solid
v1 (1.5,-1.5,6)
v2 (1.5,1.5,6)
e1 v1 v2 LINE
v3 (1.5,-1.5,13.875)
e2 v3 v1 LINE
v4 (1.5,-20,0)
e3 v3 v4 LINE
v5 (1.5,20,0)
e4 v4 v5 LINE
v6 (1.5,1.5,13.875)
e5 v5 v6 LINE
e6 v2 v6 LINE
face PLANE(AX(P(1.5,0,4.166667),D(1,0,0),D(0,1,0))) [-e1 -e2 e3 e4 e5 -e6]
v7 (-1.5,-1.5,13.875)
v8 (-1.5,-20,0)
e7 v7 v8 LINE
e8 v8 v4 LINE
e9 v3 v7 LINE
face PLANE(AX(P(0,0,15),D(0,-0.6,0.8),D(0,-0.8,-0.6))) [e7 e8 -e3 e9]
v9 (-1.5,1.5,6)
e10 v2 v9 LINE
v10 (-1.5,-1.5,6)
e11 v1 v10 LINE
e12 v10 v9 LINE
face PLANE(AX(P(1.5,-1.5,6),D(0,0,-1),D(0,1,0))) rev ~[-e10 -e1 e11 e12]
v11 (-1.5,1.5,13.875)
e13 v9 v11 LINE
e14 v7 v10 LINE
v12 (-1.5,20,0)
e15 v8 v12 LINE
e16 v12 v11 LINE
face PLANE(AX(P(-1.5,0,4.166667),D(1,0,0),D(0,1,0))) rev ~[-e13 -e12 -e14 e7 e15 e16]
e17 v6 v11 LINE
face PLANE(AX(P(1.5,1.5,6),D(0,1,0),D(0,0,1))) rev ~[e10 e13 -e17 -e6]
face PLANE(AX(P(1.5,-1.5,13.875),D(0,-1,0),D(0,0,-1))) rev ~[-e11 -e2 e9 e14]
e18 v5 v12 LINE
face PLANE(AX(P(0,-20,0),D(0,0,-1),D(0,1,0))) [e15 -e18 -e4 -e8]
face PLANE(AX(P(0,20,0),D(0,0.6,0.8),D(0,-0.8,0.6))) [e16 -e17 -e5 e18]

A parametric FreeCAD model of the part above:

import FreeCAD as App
import Part
import Sketcher
Q = App.Units.Quantity

doc = App.newDocument("Part")
body = doc.addObject("PartDesign::Body", "Body")

# Sketch on YZ plane
sketch1 = doc.addObject("Sketcher::SketchObject", "Sketch")
body.addObject(sketch1)
sketch1.AttachmentSupport = (doc.YZ_Plane, [""])
sketch1.MapMode = "FlatFace"
sketch1.addGeometry([
    Part.LineSegment(App.Vector(0, 15, 0), App.Vector(-20, 0, 0)),
    Part.LineSegment(App.Vector(-20, 0, 0), App.Vector(20, 0, 0)),
    Part.LineSegment(App.Vector(20, 0, 0), App.Vector(0, 15, 0)),
], False)
sketch1.addConstraint([
    Sketcher.Constraint("Coincident", 0, 2, 1, 1),
    Sketcher.Constraint("Coincident", 1, 2, 2, 1),
    Sketcher.Constraint("Coincident", 2, 2, 0, 1),
    Sketcher.Constraint("Horizontal", 1),
    Sketcher.Constraint("Symmetric", 0, 2, 1, 2, -1, 1),
    Sketcher.Constraint("PointOnObject", 2, 2, -2),
    Sketcher.Constraint("DistanceX", 1, 1, 1, 2, Q("40 mm")),
    Sketcher.Constraint("Distance", 0, Q("25 mm")),
])
pad1 = doc.addObject("PartDesign::Pad", "Pad")
body.addObject(pad1)
pad1.Profile = sketch1
pad1.Length = 3
pad1.Midplane = True

# Sketch on YZ plane
sketch2 = doc.addObject("Sketcher::SketchObject", "Sketch001")
body.addObject(sketch2)
sketch2.AttachmentSupport = (doc.YZ_Plane, [""])
sketch2.MapMode = "FlatFace"
sketch2.AttachmentOffset = App.Placement(App.Vector(0, 0, 1.5), App.Rotation())
sketch2.addGeometry([
    Part.LineSegment(App.Vector(-1.5, 13.875, 0), App.Vector(-1.5, 6, 0)),  # 0
    Part.LineSegment(App.Vector(-1.5, 6, 0), App.Vector(1.5, 6, 0)),  # 1
    Part.LineSegment(App.Vector(1.5, 6, 0), App.Vector(1.5, 13.875, 0)),  # 2
    Part.LineSegment(App.Vector(1.5, 13.875, 0), App.Vector(0, 15, 0)),  # 3
    Part.LineSegment(App.Vector(0, 15, 0), App.Vector(-1.5, 13.875, 0)),  # 4
], False)
sketch2.addConstraint([
    Sketcher.Constraint("Coincident", 0, 2, 1, 1),
    Sketcher.Constraint("Coincident", 1, 2, 2, 1),
    Sketcher.Constraint("Coincident", 2, 2, 3, 1),
    Sketcher.Constraint("Coincident", 3, 2, 4, 1),
    Sketcher.Constraint("Coincident", 4, 2, 0, 1),
    Sketcher.Constraint("Vertical", 0),
    Sketcher.Constraint("Horizontal", 1),
    Sketcher.Constraint("Vertical", 2),
    Sketcher.Constraint("Symmetric", 2, 2, 4, 2, -2),
    Sketcher.Constraint("PointOnObject", 3, 2, -2),
    Sketcher.Constraint("DistanceX", 1, 1, 1, 2, Q("3 mm")),
    Sketcher.Constraint("DistanceY", -1, 1, 0, 2, Q("6 mm")),
    Sketcher.Constraint("DistanceY", -1, 1, 3, 2, Q("15 mm")),
    Sketcher.Constraint("DistanceY", 0, 2, 0, 1, Q("7.875 mm")),
])
pocket1 = doc.addObject("PartDesign::Pocket", "Pocket")
body.addObject(pocket1)
pocket1.Profile = sketch2
pocket1.Length = 25

doc.recompute()
